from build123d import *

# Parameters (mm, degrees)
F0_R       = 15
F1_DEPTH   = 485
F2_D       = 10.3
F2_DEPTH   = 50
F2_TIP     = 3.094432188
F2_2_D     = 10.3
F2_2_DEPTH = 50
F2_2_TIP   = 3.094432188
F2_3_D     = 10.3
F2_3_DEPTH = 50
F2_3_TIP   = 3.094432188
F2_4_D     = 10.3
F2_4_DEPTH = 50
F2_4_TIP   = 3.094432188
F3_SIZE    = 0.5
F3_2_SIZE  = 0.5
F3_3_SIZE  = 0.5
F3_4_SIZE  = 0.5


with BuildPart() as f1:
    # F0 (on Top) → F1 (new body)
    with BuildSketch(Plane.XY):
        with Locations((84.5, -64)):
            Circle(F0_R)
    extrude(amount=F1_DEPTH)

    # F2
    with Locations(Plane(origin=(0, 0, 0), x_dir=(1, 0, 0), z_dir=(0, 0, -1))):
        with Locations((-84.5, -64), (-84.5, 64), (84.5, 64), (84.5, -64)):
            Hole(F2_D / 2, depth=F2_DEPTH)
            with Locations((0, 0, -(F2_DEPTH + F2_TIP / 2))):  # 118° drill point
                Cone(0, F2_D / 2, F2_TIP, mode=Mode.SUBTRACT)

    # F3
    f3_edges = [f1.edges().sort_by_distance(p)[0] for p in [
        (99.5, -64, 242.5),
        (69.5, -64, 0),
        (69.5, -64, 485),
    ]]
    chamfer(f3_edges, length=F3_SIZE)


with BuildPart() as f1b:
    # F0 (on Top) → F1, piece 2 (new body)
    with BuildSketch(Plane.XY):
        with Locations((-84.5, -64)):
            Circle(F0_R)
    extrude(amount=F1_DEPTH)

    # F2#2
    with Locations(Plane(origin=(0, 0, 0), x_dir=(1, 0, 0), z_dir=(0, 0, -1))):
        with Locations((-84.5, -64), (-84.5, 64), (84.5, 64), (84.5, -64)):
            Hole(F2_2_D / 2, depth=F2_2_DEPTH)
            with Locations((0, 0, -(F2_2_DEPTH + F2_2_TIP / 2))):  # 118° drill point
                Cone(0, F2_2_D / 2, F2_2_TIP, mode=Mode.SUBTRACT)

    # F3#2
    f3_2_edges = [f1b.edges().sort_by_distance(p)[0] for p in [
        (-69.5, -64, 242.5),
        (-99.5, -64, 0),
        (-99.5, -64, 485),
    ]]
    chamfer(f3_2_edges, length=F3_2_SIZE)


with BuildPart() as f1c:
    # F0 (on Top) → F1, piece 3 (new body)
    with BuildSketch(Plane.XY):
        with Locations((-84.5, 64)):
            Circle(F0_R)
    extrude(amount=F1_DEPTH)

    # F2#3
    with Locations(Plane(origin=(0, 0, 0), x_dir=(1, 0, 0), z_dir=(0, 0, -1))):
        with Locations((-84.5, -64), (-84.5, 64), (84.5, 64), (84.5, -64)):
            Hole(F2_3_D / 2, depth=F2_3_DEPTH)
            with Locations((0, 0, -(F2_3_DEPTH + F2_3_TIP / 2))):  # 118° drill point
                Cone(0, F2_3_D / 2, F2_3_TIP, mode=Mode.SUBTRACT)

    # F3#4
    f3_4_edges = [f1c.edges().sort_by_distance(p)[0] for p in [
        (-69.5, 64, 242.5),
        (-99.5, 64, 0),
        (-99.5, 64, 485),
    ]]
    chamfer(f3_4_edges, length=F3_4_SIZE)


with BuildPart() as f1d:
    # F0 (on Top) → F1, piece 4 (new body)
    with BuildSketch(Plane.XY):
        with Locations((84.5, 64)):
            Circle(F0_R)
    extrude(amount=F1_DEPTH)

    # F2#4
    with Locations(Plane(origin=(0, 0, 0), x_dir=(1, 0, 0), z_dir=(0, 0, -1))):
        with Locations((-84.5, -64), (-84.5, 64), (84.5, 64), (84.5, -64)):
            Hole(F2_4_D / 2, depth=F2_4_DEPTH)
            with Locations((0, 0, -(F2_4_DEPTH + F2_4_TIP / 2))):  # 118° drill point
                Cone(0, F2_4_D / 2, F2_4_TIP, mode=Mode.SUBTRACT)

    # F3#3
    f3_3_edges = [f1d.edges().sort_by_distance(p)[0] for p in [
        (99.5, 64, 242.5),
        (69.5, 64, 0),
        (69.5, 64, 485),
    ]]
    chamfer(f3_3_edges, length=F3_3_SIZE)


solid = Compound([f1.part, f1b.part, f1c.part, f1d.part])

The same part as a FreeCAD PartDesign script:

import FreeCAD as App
import Part
import Sketcher

V = App.Vector
Q = App.Units.Quantity


def edges_at(feature, points):
    """Names of the edges that pass closest to the given points."""
    edges = feature.Shape.Edges
    near = lambda p: min(range(len(edges)), key=lambda i: edges[i].distToShape(Part.Vertex(*p))[0])
    return sorted({f"Edge{near(p) + 1}" for p in points})

doc = App.newDocument("Part")
body = doc.addObject("PartDesign::Body", "Body")

sketch1 = body.newObject("Sketcher::SketchObject", "Sketch")
sketch1.AttachmentSupport = (doc.getObject("XY_Plane"), [""])
sketch1.MapMode = "FlatFace"
sketch1.addGeometry(Part.Circle(V(84.5, -64, 0), V(0, 0, 1), 15), False)
sketch1.addConstraint(Sketcher.Constraint("Diameter", 0, Q("30 mm")))
sketch1.addConstraint(Sketcher.Constraint("DistanceY", 0, 3, -1, 1, Q("64 mm")))
sketch1.addConstraint(Sketcher.Constraint("DistanceX", -1, 1, 0, 3, Q("84.5 mm")))
pad1 = body.newObject("PartDesign::Pad", "Pad")
pad1.Profile = sketch1
pad1.Length = 485

sketch2 = body.newObject("Sketcher::SketchObject", "Sketch001")
sketch2.AttachmentSupport = (doc.getObject("XY_Plane"), [""])
sketch2.MapMode = "FlatFace"
sketch2.addGeometry(Part.Circle(V(-84.5, 64, 0), V(0, 0, 1), 5.15), False)
sketch2.addGeometry(Part.Circle(V(-84.5, -64, 0), V(0, 0, 1), 5.15), False)
sketch2.addGeometry(Part.Circle(V(84.5, -64, 0), V(0, 0, 1), 5.15), False)
sketch2.addGeometry(Part.Circle(V(84.5, 64, 0), V(0, 0, 1), 5.15), False)
sketch2.addConstraint(Sketcher.Constraint("Equal", 0, 1))
sketch2.addConstraint(Sketcher.Constraint("Equal", 1, 2))
sketch2.addConstraint(Sketcher.Constraint("Equal", 2, 3))
sketch2.addConstraint(Sketcher.Constraint("Symmetric", 0, 3, 2, 3, -1, 1))
sketch2.addConstraint(Sketcher.Constraint("Symmetric", 1, 3, 3, 3, -1, 1))
sketch2.addConstraint(Sketcher.Constraint("Symmetric", 1, 3, 2, 3, -2))
sketch2.addConstraint(Sketcher.Constraint("Diameter", 0, Q("10.3 mm")))
sketch2.addConstraint(Sketcher.Constraint("DistanceY", -1, 1, 0, 3, Q("64 mm")))
sketch2.addConstraint(Sketcher.Constraint("DistanceX", 1, 3, 2, 3, Q("169 mm")))
doc.recompute()
hole = body.newObject("PartDesign::Hole", "Hole")
hole.Profile = sketch2
hole.ThreadType = "None"
hole.Diameter = 10.3
hole.DepthType = "Dimension"
hole.Depth = 50
hole.DrillPoint = "Angled"
hole.DrillPointAngle = 118
hole.Reversed = True
doc.recompute()

chamfer = body.newObject("PartDesign::Chamfer", "Chamfer")
chamfer.Base = (hole, edges_at(hole, [(99.5, -64, 242.5), (69.5, -64, 0), (69.5, -64, 485)]))
chamfer.Size = 0.5
body2 = doc.addObject("PartDesign::Body", "Body001")

sketch3 = body2.newObject("Sketcher::SketchObject", "Sketch002")
sketch3.AttachmentSupport = (doc.getObject("XY_Plane001"), [""])
sketch3.MapMode = "FlatFace"
sketch3.addGeometry(Part.Circle(V(-84.5, -64, 0), V(0, 0, 1), 15), False)
sketch3.addConstraint(Sketcher.Constraint("Diameter", 0, Q("30 mm")))
sketch3.addConstraint(Sketcher.Constraint("DistanceY", 0, 3, -1, 1, Q("64 mm")))
sketch3.addConstraint(Sketcher.Constraint("DistanceX", 0, 3, -1, 1, Q("84.5 mm")))
pad2 = body2.newObject("PartDesign::Pad", "Pad001")
pad2.Profile = sketch3
pad2.Length = 485

sketch4 = body2.newObject("Sketcher::SketchObject", "Sketch003")
sketch4.AttachmentSupport = (doc.getObject("XY_Plane001"), [""])
sketch4.MapMode = "FlatFace"
sketch4.addGeometry(Part.Circle(V(-84.5, 64, 0), V(0, 0, 1), 5.15), False)
sketch4.addGeometry(Part.Circle(V(-84.5, -64, 0), V(0, 0, 1), 5.15), False)
sketch4.addGeometry(Part.Circle(V(84.5, -64, 0), V(0, 0, 1), 5.15), False)
sketch4.addGeometry(Part.Circle(V(84.5, 64, 0), V(0, 0, 1), 5.15), False)
sketch4.addConstraint(Sketcher.Constraint("Equal", 0, 1))
sketch4.addConstraint(Sketcher.Constraint("Equal", 1, 2))
sketch4.addConstraint(Sketcher.Constraint("Equal", 2, 3))
sketch4.addConstraint(Sketcher.Constraint("Symmetric", 0, 3, 2, 3, -1, 1))
sketch4.addConstraint(Sketcher.Constraint("Symmetric", 1, 3, 3, 3, -1, 1))
sketch4.addConstraint(Sketcher.Constraint("Symmetric", 1, 3, 2, 3, -2))
sketch4.addConstraint(Sketcher.Constraint("Diameter", 0, Q("10.3 mm")))
sketch4.addConstraint(Sketcher.Constraint("DistanceY", -1, 1, 0, 3, Q("64 mm")))
sketch4.addConstraint(Sketcher.Constraint("DistanceX", 1, 3, 2, 3, Q("169 mm")))
doc.recompute()
hole2 = body2.newObject("PartDesign::Hole", "Hole001")
hole2.Profile = sketch4
hole2.ThreadType = "None"
hole2.Diameter = 10.3
hole2.DepthType = "Dimension"
hole2.Depth = 50
hole2.DrillPoint = "Angled"
hole2.DrillPointAngle = 118
hole2.Reversed = True
doc.recompute()

chamfer2 = body2.newObject("PartDesign::Chamfer", "Chamfer001")
chamfer2.Base = (hole2, edges_at(hole2, [(-69.5, -64, 242.5), (-99.5, -64, 0), (-99.5, -64, 485)]))
chamfer2.Size = 0.5
body3 = doc.addObject("PartDesign::Body", "Body002")

sketch5 = body3.newObject("Sketcher::SketchObject", "Sketch004")
sketch5.AttachmentSupport = (doc.getObject("XY_Plane002"), [""])
sketch5.MapMode = "FlatFace"
sketch5.addGeometry(Part.Circle(V(-84.5, 64, 0), V(0, 0, 1), 15), False)
sketch5.addConstraint(Sketcher.Constraint("Diameter", 0, Q("30 mm")))
sketch5.addConstraint(Sketcher.Constraint("DistanceY", -1, 1, 0, 3, Q("64 mm")))
sketch5.addConstraint(Sketcher.Constraint("DistanceX", 0, 3, -1, 1, Q("84.5 mm")))
pad3 = body3.newObject("PartDesign::Pad", "Pad002")
pad3.Profile = sketch5
pad3.Length = 485

sketch6 = body3.newObject("Sketcher::SketchObject", "Sketch005")
sketch6.AttachmentSupport = (doc.getObject("XY_Plane002"), [""])
sketch6.MapMode = "FlatFace"
sketch6.addGeometry(Part.Circle(V(-84.5, 64, 0), V(0, 0, 1), 5.15), False)
sketch6.addGeometry(Part.Circle(V(-84.5, -64, 0), V(0, 0, 1), 5.15), False)
sketch6.addGeometry(Part.Circle(V(84.5, -64, 0), V(0, 0, 1), 5.15), False)
sketch6.addGeometry(Part.Circle(V(84.5, 64, 0), V(0, 0, 1), 5.15), False)
sketch6.addConstraint(Sketcher.Constraint("Equal", 0, 1))
sketch6.addConstraint(Sketcher.Constraint("Equal", 1, 2))
sketch6.addConstraint(Sketcher.Constraint("Equal", 2, 3))
sketch6.addConstraint(Sketcher.Constraint("Symmetric", 0, 3, 2, 3, -1, 1))
sketch6.addConstraint(Sketcher.Constraint("Symmetric", 1, 3, 3, 3, -1, 1))
sketch6.addConstraint(Sketcher.Constraint("Symmetric", 1, 3, 2, 3, -2))
sketch6.addConstraint(Sketcher.Constraint("Diameter", 0, Q("10.3 mm")))
sketch6.addConstraint(Sketcher.Constraint("DistanceY", -1, 1, 0, 3, Q("64 mm")))
sketch6.addConstraint(Sketcher.Constraint("DistanceX", 1, 3, 2, 3, Q("169 mm")))
doc.recompute()
hole3 = body3.newObject("PartDesign::Hole", "Hole002")
hole3.Profile = sketch6
hole3.ThreadType = "None"
hole3.Diameter = 10.3
hole3.DepthType = "Dimension"
hole3.Depth = 50
hole3.DrillPoint = "Angled"
hole3.DrillPointAngle = 118
hole3.Reversed = True
doc.recompute()

chamfer3 = body3.newObject("PartDesign::Chamfer", "Chamfer002")
chamfer3.Base = (hole3, edges_at(hole3, [(-69.5, 64, 242.5), (-99.5, 64, 0), (-99.5, 64, 485)]))
chamfer3.Size = 0.5
body4 = doc.addObject("PartDesign::Body", "Body003")

sketch7 = body4.newObject("Sketcher::SketchObject", "Sketch006")
sketch7.AttachmentSupport = (doc.getObject("XY_Plane003"), [""])
sketch7.MapMode = "FlatFace"
sketch7.addGeometry(Part.Circle(V(84.5, 64, 0), V(0, 0, 1), 15), False)
sketch7.addConstraint(Sketcher.Constraint("Diameter", 0, Q("30 mm")))
sketch7.addConstraint(Sketcher.Constraint("DistanceY", -1, 1, 0, 3, Q("64 mm")))
sketch7.addConstraint(Sketcher.Constraint("DistanceX", -1, 1, 0, 3, Q("84.5 mm")))
pad4 = body4.newObject("PartDesign::Pad", "Pad003")
pad4.Profile = sketch7
pad4.Length = 485

sketch8 = body4.newObject("Sketcher::SketchObject", "Sketch007")
sketch8.AttachmentSupport = (doc.getObject("XY_Plane003"), [""])
sketch8.MapMode = "FlatFace"
sketch8.addGeometry(Part.Circle(V(-84.5, 64, 0), V(0, 0, 1), 5.15), False)
sketch8.addGeometry(Part.Circle(V(-84.5, -64, 0), V(0, 0, 1), 5.15), False)
sketch8.addGeometry(Part.Circle(V(84.5, -64, 0), V(0, 0, 1), 5.15), False)
sketch8.addGeometry(Part.Circle(V(84.5, 64, 0), V(0, 0, 1), 5.15), False)
sketch8.addConstraint(Sketcher.Constraint("Equal", 0, 1))
sketch8.addConstraint(Sketcher.Constraint("Equal", 1, 2))
sketch8.addConstraint(Sketcher.Constraint("Equal", 2, 3))
sketch8.addConstraint(Sketcher.Constraint("Symmetric", 0, 3, 2, 3, -1, 1))
sketch8.addConstraint(Sketcher.Constraint("Symmetric", 1, 3, 3, 3, -1, 1))
sketch8.addConstraint(Sketcher.Constraint("Symmetric", 1, 3, 2, 3, -2))
sketch8.addConstraint(Sketcher.Constraint("Diameter", 0, Q("10.3 mm")))
sketch8.addConstraint(Sketcher.Constraint("DistanceY", -1, 1, 0, 3, Q("64 mm")))
sketch8.addConstraint(Sketcher.Constraint("DistanceX", 1, 3, 2, 3, Q("169 mm")))
doc.recompute()
hole4 = body4.newObject("PartDesign::Hole", "Hole003")
hole4.Profile = sketch8
hole4.ThreadType = "None"
hole4.Diameter = 10.3
hole4.DepthType = "Dimension"
hole4.Depth = 50
hole4.DrillPoint = "Angled"
hole4.DrillPointAngle = 118
hole4.Reversed = True
doc.recompute()

chamfer4 = body4.newObject("PartDesign::Chamfer", "Chamfer003")
chamfer4.Base = (hole4, edges_at(hole4, [(99.5, 64, 242.5), (69.5, 64, 0), (69.5, 64, 485)]))
chamfer4.Size = 0.5

doc.recompute()
